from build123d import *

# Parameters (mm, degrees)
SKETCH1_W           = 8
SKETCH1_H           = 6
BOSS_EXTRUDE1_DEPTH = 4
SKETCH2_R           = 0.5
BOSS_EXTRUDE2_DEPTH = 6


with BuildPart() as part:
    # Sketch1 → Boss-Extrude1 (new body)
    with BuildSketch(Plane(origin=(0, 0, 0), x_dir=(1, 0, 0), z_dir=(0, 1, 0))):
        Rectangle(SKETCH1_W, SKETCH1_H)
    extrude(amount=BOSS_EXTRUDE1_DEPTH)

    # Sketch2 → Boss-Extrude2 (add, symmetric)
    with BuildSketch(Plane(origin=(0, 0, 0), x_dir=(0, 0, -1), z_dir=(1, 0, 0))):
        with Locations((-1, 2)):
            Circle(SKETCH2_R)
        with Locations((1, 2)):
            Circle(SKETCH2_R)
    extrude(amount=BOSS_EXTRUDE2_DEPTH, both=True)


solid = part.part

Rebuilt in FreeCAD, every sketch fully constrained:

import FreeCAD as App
import Part
import Sketcher

V = App.Vector

doc = App.newDocument("Part")
body = doc.addObject("PartDesign::Body", "Body")

# Sketch on XZ plane
sketch1 = body.newObject("Sketcher::SketchObject", "Sketch")
sketch1.AttachmentSupport = (doc.getObject("XZ_Plane"), [""])
sketch1.MapMode = "FlatFace"
sketch1.addGeometry([
    Part.LineSegment(V(-4, -3, 0), V(-4, 3, 0)),
    Part.LineSegment(V(-4, 3, 0), V(4, 3, 0)),
    Part.LineSegment(V(4, 3, 0), V(4, -3, 0)),
    Part.LineSegment(V(4, -3, 0), V(-4, -3, 0)),
], False)
sketch1.addConstraint([
    Sketcher.Constraint("Coincident", 0, 2, 1, 1),
    Sketcher.Constraint("Coincident", 1, 2, 2, 1),
    Sketcher.Constraint("Coincident", 2, 2, 3, 1),
    Sketcher.Constraint("Coincident", 3, 2, 0, 1),
    Sketcher.Constraint("Vertical", 0),
    Sketcher.Constraint("Horizontal", 1),
    Sketcher.Constraint("Vertical", 2),
    Sketcher.Constraint("Horizontal", 3),
    Sketcher.Constraint("Symmetric", 0, 2, 2, 2, -1, 1),
    Sketcher.Constraint("DistanceX", 1, 1, 1, 2, 8.0),
    Sketcher.Constraint("DistanceY", 0, 1, 0, 2, 6.0),
])
pad1 = body.newObject("PartDesign::Pad", "Pad")
pad1.Profile = sketch1
pad1.Length = 4
pad1.Reversed = True

# Sketch on YZ plane
sketch2 = body.newObject("Sketcher::SketchObject", "Sketch001")
sketch2.AttachmentSupport = (doc.getObject("YZ_Plane"), [""])
sketch2.MapMode = "FlatFace"
sketch2.addGeometry([
    Part.Circle(V(2, 1, 0), V(0, 0, 1), 0.5),
    Part.Circle(V(2, -1, 0), V(0, 0, 1), 0.5),
], False)
sketch2.addConstraint([
    Sketcher.Constraint("Equal", 0, 1),
    Sketcher.Constraint("Symmetric", 0, 3, 1, 3, -1),
    Sketcher.Constraint("Diameter", 0, 1.0),
    Sketcher.Constraint("DistanceX", -1, 1, 0, 3, 2.0),
    Sketcher.Constraint("DistanceY", -1, 1, 0, 3, 1.0),
])
pad2 = body.newObject("PartDesign::Pad", "Pad001")
pad2.Profile = sketch2
pad2.Length = 12
pad2.Midplane = True

doc.recompute()
